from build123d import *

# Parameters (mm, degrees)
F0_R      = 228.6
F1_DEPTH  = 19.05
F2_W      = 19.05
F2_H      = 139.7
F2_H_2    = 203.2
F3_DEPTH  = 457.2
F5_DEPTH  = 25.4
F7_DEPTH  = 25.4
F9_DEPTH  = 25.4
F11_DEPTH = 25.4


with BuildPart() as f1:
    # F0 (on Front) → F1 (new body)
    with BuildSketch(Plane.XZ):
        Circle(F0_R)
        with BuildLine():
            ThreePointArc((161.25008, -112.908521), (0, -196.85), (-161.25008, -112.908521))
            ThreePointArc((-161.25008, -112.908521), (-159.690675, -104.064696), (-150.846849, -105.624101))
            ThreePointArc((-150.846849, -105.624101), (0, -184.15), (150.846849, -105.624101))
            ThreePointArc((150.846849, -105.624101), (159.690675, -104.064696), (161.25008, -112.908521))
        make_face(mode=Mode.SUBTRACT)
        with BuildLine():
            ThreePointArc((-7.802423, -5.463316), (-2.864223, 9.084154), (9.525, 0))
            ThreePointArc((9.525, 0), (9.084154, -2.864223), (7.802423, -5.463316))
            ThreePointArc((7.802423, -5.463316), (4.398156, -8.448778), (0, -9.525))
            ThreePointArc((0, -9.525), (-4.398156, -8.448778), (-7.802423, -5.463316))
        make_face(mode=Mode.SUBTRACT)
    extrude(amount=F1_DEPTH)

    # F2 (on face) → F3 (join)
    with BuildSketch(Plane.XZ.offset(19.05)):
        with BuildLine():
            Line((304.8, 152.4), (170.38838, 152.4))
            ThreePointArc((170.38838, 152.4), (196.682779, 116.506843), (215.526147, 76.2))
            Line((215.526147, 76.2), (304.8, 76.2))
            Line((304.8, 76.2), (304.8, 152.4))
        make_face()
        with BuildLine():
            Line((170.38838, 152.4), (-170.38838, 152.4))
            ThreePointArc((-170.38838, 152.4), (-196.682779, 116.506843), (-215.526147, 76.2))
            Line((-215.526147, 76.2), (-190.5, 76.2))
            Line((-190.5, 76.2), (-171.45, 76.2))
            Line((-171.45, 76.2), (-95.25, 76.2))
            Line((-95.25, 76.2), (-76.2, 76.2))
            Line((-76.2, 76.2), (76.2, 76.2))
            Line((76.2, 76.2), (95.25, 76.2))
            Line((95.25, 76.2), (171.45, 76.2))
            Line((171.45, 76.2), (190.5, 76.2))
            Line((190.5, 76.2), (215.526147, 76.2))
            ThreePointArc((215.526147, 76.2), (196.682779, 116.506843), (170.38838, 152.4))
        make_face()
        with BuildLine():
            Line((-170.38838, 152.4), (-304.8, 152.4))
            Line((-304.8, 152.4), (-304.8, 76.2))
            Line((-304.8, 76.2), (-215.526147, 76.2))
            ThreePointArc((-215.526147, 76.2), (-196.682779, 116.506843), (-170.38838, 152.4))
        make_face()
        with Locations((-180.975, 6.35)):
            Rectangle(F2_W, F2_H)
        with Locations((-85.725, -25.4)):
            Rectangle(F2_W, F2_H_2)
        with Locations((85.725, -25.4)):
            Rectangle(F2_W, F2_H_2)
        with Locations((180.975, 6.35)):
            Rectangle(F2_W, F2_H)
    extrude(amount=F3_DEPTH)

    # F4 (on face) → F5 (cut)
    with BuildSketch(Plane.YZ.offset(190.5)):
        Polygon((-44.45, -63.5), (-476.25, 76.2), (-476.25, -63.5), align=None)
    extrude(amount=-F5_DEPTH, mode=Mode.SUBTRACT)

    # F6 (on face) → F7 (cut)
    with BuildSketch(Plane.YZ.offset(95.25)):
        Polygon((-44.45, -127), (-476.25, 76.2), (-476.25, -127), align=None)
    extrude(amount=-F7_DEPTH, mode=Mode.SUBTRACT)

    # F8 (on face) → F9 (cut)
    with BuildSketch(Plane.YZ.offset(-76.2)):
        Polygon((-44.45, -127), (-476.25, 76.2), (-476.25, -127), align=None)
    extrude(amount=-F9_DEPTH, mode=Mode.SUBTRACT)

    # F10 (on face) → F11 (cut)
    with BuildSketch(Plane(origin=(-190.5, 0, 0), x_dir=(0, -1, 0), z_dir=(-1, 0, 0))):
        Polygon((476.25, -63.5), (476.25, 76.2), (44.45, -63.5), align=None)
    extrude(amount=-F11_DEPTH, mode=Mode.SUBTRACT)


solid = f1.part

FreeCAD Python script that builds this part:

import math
import FreeCAD as App
import Part
import Sketcher

V = App.Vector
Q = App.Units.Quantity


def add_polygon(sketch, points):
    """Adds a closed chain of lines whose ends are joined by coincident constraints."""
    first, n = sketch.GeometryCount, len(points)
    for a, b in zip(points, points[1:] + points[:1]):
        sketch.addGeometry(Part.LineSegment(App.Vector(*a, 0), App.Vector(*b, 0)), False)
    for i in range(n):
        sketch.addConstraint(Sketcher.Constraint("Coincident", first + i, 2, first + (i + 1) % n, 1))

doc = App.newDocument("Part")
body = doc.addObject("PartDesign::Body", "Body")

# Sketch on XZ plane
sketch1 = body.newObject("Sketcher::SketchObject", "Sketch")
sketch1.AttachmentSupport = (doc.getObject("XZ_Plane"), [""])
sketch1.MapMode = "FlatFace"
sketch1.addGeometry([
    Part.Circle(V(0, 0, 0), V(0, 0, 1), 228.6),  # 0
    Part.ArcOfCircle(Part.Circle(V(156.048464, -109.266311, 0), V(0, 0, 1), 6.35), math.radians(-34.999996), math.radians(145.000002)),  # 1
    Part.ArcOfCircle(Part.Circle(V(0, -0.000001, 0), V(0, 0, 1), 196.849999), math.radians(-145), math.radians(-35)),  # 2
    Part.ArcOfCircle(Part.Circle(V(-156.048464, -109.266311, 0), V(0, 0, 1), 6.35), math.radians(34.999998), math.radians(214.999996)),  # 3
    Part.ArcOfCircle(Part.Circle(V(0, 0, 0), V(0, 0, 1), 184.15), math.radians(-145), math.radians(-35)),  # 4
    Part.ArcOfCircle(Part.Circle(V(0, 0, 0), V(0, 0, 1), 9.525), math.radians(-144.999997), math.radians(-89.999999)),  # 5
    Part.ArcOfCircle(Part.Circle(V(0, 0, 0), V(0, 0, 1), 9.525), math.radians(0), math.radians(215.000003)),  # 6
    Part.ArcOfCircle(Part.Circle(V(0.000002, -0.000001, 0), V(0, 0, 1), 9.524998), math.radians(-35.000006), math.radians(0.000004)),  # 7
    Part.ArcOfCircle(Part.Circle(V(0, 0, 0), V(0, 0, 1), 9.525), math.radians(-90.000001), math.radians(-35.000003)),  # 8
], False)
sketch1.addConstraint([
    Sketcher.Constraint("Tangent", 1, 1, 2, 2),
    Sketcher.Constraint("Tangent", 2, 1, 3, 2),
    Sketcher.Constraint("Tangent", 3, 1, 4, 1),
    Sketcher.Constraint("Tangent", 4, 2, 1, 2),
    Sketcher.Constraint("Tangent", 5, 1, 6, 2),
    Sketcher.Constraint("Tangent", 6, 1, 7, 2),
    Sketcher.Constraint("Tangent", 7, 1, 8, 2),
    Sketcher.Constraint("Tangent", 8, 1, 5, 2),
    Sketcher.Constraint("Coincident", 0, 3, -1, 1),
    Sketcher.Constraint("Coincident", 2, 3, -1, 1),
    Sketcher.Constraint("Coincident", 4, 3, -1, 1),
    Sketcher.Constraint("Coincident", 5, 3, -1, 1),
    Sketcher.Constraint("Equal", 5, 6),
    Sketcher.Constraint("PointOnObject", 6, 1, -1),
    Sketcher.Constraint("PointOnObject", 8, 1, -2),
    Sketcher.Constraint("Horizontal", 1, 3, 3, 3),
    Sketcher.Constraint("Horizontal", 5, 1, 7, 1),
    Sketcher.Constraint("Diameter", 0, Q("18 in")),
    Sketcher.Constraint("Radius", 1, Q("0.25 in")),
    Sketcher.Constraint("Radius", 2, Q("7.75 in")),
    Sketcher.Constraint("Radius", 5, Q("0.375 in")),
    Sketcher.Constraint("DistanceY", 3, 1, -1, 1, 105.624101),
    Sketcher.Constraint("DistanceX", 7, 3, 7, 1, 7.802421),
])
pad1 = body.newObject("PartDesign::Pad", "Pad")
pad1.Profile = sketch1
pad1.Length = Q("0.75 in")

# Sketch on XZ plane
sketch2 = body.newObject("Sketcher::SketchObject", "Sketch001")
sketch2.AttachmentSupport = (doc.getObject("XZ_Plane"), [""])
sketch2.MapMode = "FlatFace"
sketch2.AttachmentOffset = App.Placement(V(0, 0, 0.75 * 25.4), App.Rotation())
add_polygon(sketch2, [(304.8, 152.4), (-304.8, 152.4), (-304.8, 76.2), (-190.5, 76.2), (-190.5, -63.5), (-171.45, -63.5), (-171.45, 76.2), (-95.25, 76.2), (-95.25, -127), (-76.2, -127), (-76.2, 76.2), (76.2, 76.2), (76.2, -127), (95.25, -127), (95.25, 76.2), (171.45, 76.2), (171.45, -63.5), (190.5, -63.5), (190.5, 76.2), (304.8, 76.2)])  # lines 0-19
sketch2.addConstraint([
    Sketcher.Constraint("Horizontal", 0),
    Sketcher.Constraint("Vertical", 1),
    Sketcher.Constraint("Horizontal", 2),
    Sketcher.Constraint("Vertical", 3),
    Sketcher.Constraint("Horizontal", 4),
    Sketcher.Constraint("Vertical", 5),
    Sketcher.Constraint("Horizontal", 6),
    Sketcher.Constraint("Vertical", 7),
    Sketcher.Constraint("Horizontal", 8),
    Sketcher.Constraint("Vertical", 9),
    Sketcher.Constraint("Horizontal", 10),
    Sketcher.Constraint("Vertical", 11),
    Sketcher.Constraint("Horizontal", 12),
    Sketcher.Constraint("Vertical", 13),
    Sketcher.Constraint("Horizontal", 14),
    Sketcher.Constraint("Vertical", 15),
    Sketcher.Constraint("Horizontal", 16),
    Sketcher.Constraint("Vertical", 17),
    Sketcher.Constraint("Horizontal", 18),
    Sketcher.Constraint("Vertical", 19),
    Sketcher.Constraint("Symmetric", 8, 2, 11, 2, -2),
    Sketcher.Constraint("Symmetric", 6, 2, 13, 2, -2),
    Sketcher.Constraint("Symmetric", 4, 2, 15, 2, -2),
    Sketcher.Constraint("Symmetric", 2, 2, 17, 2, -2),
    Sketcher.Constraint("Horizontal", 2, 2, 5, 2),
    Sketcher.Constraint("Horizontal", 6, 2, 9, 2),
    Sketcher.Constraint("Equal", 4, 8),
    Sketcher.Constraint("Equal", 2, 18),
    Sketcher.Constraint("Equal", 14, 1),
    Sketcher.Constraint("DistanceX", 0, 2, 0, 1, Q("24 in")),
    Sketcher.Constraint("DistanceX", 6, 1, 6, 2, Q("3 in")),
    Sketcher.Constraint("DistanceX", 10, 1, 10, 2, Q("6 in")),
    Sketcher.Constraint("DistanceY", 7, 2, 7, 1, Q("8 in")),
    Sketcher.Constraint("DistanceX", 2, 1, 2, 2, Q("4.5 in")),
    Sketcher.Constraint("DistanceY", 3, 2, 3, 1, Q("5.5 in")),
    Sketcher.Constraint("DistanceY", -1, 1, 0, 2, Q("6 in")),
])
pad2 = body.newObject("PartDesign::Pad", "Pad001")
pad2.Profile = sketch2
pad2.Length = Q("18 in")

# Sketch on YZ plane
sketch3 = body.newObject("Sketcher::SketchObject", "Sketch002")
sketch3.AttachmentSupport = (doc.getObject("YZ_Plane"), [""])
sketch3.MapMode = "FlatFace"
sketch3.AttachmentOffset = App.Placement(V(0, 0, 7.5 * 25.4), App.Rotation())
add_polygon(sketch3, [(-44.45, -63.5), (-476.25, 76.2), (-476.25, -63.5)])  # lines 0-2
sketch3.addConstraint([
    Sketcher.Constraint("Vertical", 1),
    Sketcher.Constraint("Horizontal", 2),
    Sketcher.Constraint("DistanceX", 2, 1, 2, 2, Q("17 in")),
    Sketcher.Constraint("DistanceY", 1, 2, 1, 1, Q("5.5 in")),
    Sketcher.Constraint("DistanceY", -1, 1, 0, 2, Q("3 in")),
    Sketcher.Constraint("DistanceX", 0, 2, -1, 1, Q("18.75 in")),
])
pocket1 = body.newObject("PartDesign::Pocket", "Pocket")
pocket1.Profile = sketch3
pocket1.Length = Q("1 in")

# Sketch on YZ plane
sketch4 = body.newObject("Sketcher::SketchObject", "Sketch003")
sketch4.AttachmentSupport = (doc.getObject("YZ_Plane"), [""])
sketch4.MapMode = "FlatFace"
sketch4.AttachmentOffset = App.Placement(V(0, 0, 3.75 * 25.4), App.Rotation())
add_polygon(sketch4, [(-44.45, -127), (-476.25, 76.2), (-476.25, -127)])  # lines 0-2
sketch4.addConstraint([
    Sketcher.Constraint("Vertical", 1),
    Sketcher.Constraint("Horizontal", 2),
    Sketcher.Constraint("DistanceX", 2, 1, 2, 2, Q("17 in")),
    Sketcher.Constraint("DistanceY", 1, 2, 1, 1, Q("8 in")),
    Sketcher.Constraint("DistanceY", -1, 1, 0, 2, Q("3 in")),
    Sketcher.Constraint("DistanceX", 0, 2, -1, 1, Q("18.75 in")),
])
pocket2 = body.newObject("PartDesign::Pocket", "Pocket001")
pocket2.Profile = sketch4
pocket2.Length = Q("1 in")

# Sketch on YZ plane
sketch5 = body.newObject("Sketcher::SketchObject", "Sketch004")
sketch5.AttachmentSupport = (doc.getObject("YZ_Plane"), [""])
sketch5.MapMode = "FlatFace"
sketch5.AttachmentOffset = App.Placement(V(0, 0, -3 * 25.4), App.Rotation())
add_polygon(sketch5, [(-44.45, -127), (-476.25, 76.2), (-476.25, -127)])  # lines 0-2
sketch5.addConstraint([
    Sketcher.Constraint("Vertical", 1),
    Sketcher.Constraint("Horizontal", 2),
    Sketcher.Constraint("DistanceX", 2, 1, 2, 2, Q("17 in")),
    Sketcher.Constraint("DistanceY", 1, 2, 1, 1, Q("8 in")),
    Sketcher.Constraint("DistanceY", -1, 1, 0, 2, Q("3 in")),
    Sketcher.Constraint("DistanceX", 0, 2, -1, 1, Q("18.75 in")),
])
pocket3 = body.newObject("PartDesign::Pocket", "Pocket002")
pocket3.Profile = sketch5
pocket3.Length = Q("1 in")

# Sketch on YZ plane
sketch6 = body.newObject("Sketcher::SketchObject", "Sketch005")
sketch6.AttachmentSupport = (doc.getObject("YZ_Plane"), [""])
sketch6.MapMode = "FlatFace"
sketch6.AttachmentOffset = App.Placement(V(0, 0, -7.5 * 25.4), App.Rotation())
add_polygon(sketch6, [(-476.25, -63.5), (-476.25, 76.2), (-44.45, -63.5)])  # lines 0-2
sketch6.addConstraint([
    Sketcher.Constraint("Vertical", 0),
    Sketcher.Constraint("Horizontal", 2),
    Sketcher.Constraint("DistanceX", 2, 2, 2, 1, Q("17 in")),
    Sketcher.Constraint("DistanceY", 0, 1, 0, 2, Q("5.5 in")),
    Sketcher.Constraint("DistanceY", -1, 1, 0, 2, Q("3 in")),
    Sketcher.Constraint("DistanceX", 0, 2, -1, 1, Q("18.75 in")),
])
pocket4 = body.newObject("PartDesign::Pocket", "Pocket003")
pocket4.Profile = sketch6
pocket4.Length = Q("1 in")
pocket4.Reversed = True

doc.recompute()
